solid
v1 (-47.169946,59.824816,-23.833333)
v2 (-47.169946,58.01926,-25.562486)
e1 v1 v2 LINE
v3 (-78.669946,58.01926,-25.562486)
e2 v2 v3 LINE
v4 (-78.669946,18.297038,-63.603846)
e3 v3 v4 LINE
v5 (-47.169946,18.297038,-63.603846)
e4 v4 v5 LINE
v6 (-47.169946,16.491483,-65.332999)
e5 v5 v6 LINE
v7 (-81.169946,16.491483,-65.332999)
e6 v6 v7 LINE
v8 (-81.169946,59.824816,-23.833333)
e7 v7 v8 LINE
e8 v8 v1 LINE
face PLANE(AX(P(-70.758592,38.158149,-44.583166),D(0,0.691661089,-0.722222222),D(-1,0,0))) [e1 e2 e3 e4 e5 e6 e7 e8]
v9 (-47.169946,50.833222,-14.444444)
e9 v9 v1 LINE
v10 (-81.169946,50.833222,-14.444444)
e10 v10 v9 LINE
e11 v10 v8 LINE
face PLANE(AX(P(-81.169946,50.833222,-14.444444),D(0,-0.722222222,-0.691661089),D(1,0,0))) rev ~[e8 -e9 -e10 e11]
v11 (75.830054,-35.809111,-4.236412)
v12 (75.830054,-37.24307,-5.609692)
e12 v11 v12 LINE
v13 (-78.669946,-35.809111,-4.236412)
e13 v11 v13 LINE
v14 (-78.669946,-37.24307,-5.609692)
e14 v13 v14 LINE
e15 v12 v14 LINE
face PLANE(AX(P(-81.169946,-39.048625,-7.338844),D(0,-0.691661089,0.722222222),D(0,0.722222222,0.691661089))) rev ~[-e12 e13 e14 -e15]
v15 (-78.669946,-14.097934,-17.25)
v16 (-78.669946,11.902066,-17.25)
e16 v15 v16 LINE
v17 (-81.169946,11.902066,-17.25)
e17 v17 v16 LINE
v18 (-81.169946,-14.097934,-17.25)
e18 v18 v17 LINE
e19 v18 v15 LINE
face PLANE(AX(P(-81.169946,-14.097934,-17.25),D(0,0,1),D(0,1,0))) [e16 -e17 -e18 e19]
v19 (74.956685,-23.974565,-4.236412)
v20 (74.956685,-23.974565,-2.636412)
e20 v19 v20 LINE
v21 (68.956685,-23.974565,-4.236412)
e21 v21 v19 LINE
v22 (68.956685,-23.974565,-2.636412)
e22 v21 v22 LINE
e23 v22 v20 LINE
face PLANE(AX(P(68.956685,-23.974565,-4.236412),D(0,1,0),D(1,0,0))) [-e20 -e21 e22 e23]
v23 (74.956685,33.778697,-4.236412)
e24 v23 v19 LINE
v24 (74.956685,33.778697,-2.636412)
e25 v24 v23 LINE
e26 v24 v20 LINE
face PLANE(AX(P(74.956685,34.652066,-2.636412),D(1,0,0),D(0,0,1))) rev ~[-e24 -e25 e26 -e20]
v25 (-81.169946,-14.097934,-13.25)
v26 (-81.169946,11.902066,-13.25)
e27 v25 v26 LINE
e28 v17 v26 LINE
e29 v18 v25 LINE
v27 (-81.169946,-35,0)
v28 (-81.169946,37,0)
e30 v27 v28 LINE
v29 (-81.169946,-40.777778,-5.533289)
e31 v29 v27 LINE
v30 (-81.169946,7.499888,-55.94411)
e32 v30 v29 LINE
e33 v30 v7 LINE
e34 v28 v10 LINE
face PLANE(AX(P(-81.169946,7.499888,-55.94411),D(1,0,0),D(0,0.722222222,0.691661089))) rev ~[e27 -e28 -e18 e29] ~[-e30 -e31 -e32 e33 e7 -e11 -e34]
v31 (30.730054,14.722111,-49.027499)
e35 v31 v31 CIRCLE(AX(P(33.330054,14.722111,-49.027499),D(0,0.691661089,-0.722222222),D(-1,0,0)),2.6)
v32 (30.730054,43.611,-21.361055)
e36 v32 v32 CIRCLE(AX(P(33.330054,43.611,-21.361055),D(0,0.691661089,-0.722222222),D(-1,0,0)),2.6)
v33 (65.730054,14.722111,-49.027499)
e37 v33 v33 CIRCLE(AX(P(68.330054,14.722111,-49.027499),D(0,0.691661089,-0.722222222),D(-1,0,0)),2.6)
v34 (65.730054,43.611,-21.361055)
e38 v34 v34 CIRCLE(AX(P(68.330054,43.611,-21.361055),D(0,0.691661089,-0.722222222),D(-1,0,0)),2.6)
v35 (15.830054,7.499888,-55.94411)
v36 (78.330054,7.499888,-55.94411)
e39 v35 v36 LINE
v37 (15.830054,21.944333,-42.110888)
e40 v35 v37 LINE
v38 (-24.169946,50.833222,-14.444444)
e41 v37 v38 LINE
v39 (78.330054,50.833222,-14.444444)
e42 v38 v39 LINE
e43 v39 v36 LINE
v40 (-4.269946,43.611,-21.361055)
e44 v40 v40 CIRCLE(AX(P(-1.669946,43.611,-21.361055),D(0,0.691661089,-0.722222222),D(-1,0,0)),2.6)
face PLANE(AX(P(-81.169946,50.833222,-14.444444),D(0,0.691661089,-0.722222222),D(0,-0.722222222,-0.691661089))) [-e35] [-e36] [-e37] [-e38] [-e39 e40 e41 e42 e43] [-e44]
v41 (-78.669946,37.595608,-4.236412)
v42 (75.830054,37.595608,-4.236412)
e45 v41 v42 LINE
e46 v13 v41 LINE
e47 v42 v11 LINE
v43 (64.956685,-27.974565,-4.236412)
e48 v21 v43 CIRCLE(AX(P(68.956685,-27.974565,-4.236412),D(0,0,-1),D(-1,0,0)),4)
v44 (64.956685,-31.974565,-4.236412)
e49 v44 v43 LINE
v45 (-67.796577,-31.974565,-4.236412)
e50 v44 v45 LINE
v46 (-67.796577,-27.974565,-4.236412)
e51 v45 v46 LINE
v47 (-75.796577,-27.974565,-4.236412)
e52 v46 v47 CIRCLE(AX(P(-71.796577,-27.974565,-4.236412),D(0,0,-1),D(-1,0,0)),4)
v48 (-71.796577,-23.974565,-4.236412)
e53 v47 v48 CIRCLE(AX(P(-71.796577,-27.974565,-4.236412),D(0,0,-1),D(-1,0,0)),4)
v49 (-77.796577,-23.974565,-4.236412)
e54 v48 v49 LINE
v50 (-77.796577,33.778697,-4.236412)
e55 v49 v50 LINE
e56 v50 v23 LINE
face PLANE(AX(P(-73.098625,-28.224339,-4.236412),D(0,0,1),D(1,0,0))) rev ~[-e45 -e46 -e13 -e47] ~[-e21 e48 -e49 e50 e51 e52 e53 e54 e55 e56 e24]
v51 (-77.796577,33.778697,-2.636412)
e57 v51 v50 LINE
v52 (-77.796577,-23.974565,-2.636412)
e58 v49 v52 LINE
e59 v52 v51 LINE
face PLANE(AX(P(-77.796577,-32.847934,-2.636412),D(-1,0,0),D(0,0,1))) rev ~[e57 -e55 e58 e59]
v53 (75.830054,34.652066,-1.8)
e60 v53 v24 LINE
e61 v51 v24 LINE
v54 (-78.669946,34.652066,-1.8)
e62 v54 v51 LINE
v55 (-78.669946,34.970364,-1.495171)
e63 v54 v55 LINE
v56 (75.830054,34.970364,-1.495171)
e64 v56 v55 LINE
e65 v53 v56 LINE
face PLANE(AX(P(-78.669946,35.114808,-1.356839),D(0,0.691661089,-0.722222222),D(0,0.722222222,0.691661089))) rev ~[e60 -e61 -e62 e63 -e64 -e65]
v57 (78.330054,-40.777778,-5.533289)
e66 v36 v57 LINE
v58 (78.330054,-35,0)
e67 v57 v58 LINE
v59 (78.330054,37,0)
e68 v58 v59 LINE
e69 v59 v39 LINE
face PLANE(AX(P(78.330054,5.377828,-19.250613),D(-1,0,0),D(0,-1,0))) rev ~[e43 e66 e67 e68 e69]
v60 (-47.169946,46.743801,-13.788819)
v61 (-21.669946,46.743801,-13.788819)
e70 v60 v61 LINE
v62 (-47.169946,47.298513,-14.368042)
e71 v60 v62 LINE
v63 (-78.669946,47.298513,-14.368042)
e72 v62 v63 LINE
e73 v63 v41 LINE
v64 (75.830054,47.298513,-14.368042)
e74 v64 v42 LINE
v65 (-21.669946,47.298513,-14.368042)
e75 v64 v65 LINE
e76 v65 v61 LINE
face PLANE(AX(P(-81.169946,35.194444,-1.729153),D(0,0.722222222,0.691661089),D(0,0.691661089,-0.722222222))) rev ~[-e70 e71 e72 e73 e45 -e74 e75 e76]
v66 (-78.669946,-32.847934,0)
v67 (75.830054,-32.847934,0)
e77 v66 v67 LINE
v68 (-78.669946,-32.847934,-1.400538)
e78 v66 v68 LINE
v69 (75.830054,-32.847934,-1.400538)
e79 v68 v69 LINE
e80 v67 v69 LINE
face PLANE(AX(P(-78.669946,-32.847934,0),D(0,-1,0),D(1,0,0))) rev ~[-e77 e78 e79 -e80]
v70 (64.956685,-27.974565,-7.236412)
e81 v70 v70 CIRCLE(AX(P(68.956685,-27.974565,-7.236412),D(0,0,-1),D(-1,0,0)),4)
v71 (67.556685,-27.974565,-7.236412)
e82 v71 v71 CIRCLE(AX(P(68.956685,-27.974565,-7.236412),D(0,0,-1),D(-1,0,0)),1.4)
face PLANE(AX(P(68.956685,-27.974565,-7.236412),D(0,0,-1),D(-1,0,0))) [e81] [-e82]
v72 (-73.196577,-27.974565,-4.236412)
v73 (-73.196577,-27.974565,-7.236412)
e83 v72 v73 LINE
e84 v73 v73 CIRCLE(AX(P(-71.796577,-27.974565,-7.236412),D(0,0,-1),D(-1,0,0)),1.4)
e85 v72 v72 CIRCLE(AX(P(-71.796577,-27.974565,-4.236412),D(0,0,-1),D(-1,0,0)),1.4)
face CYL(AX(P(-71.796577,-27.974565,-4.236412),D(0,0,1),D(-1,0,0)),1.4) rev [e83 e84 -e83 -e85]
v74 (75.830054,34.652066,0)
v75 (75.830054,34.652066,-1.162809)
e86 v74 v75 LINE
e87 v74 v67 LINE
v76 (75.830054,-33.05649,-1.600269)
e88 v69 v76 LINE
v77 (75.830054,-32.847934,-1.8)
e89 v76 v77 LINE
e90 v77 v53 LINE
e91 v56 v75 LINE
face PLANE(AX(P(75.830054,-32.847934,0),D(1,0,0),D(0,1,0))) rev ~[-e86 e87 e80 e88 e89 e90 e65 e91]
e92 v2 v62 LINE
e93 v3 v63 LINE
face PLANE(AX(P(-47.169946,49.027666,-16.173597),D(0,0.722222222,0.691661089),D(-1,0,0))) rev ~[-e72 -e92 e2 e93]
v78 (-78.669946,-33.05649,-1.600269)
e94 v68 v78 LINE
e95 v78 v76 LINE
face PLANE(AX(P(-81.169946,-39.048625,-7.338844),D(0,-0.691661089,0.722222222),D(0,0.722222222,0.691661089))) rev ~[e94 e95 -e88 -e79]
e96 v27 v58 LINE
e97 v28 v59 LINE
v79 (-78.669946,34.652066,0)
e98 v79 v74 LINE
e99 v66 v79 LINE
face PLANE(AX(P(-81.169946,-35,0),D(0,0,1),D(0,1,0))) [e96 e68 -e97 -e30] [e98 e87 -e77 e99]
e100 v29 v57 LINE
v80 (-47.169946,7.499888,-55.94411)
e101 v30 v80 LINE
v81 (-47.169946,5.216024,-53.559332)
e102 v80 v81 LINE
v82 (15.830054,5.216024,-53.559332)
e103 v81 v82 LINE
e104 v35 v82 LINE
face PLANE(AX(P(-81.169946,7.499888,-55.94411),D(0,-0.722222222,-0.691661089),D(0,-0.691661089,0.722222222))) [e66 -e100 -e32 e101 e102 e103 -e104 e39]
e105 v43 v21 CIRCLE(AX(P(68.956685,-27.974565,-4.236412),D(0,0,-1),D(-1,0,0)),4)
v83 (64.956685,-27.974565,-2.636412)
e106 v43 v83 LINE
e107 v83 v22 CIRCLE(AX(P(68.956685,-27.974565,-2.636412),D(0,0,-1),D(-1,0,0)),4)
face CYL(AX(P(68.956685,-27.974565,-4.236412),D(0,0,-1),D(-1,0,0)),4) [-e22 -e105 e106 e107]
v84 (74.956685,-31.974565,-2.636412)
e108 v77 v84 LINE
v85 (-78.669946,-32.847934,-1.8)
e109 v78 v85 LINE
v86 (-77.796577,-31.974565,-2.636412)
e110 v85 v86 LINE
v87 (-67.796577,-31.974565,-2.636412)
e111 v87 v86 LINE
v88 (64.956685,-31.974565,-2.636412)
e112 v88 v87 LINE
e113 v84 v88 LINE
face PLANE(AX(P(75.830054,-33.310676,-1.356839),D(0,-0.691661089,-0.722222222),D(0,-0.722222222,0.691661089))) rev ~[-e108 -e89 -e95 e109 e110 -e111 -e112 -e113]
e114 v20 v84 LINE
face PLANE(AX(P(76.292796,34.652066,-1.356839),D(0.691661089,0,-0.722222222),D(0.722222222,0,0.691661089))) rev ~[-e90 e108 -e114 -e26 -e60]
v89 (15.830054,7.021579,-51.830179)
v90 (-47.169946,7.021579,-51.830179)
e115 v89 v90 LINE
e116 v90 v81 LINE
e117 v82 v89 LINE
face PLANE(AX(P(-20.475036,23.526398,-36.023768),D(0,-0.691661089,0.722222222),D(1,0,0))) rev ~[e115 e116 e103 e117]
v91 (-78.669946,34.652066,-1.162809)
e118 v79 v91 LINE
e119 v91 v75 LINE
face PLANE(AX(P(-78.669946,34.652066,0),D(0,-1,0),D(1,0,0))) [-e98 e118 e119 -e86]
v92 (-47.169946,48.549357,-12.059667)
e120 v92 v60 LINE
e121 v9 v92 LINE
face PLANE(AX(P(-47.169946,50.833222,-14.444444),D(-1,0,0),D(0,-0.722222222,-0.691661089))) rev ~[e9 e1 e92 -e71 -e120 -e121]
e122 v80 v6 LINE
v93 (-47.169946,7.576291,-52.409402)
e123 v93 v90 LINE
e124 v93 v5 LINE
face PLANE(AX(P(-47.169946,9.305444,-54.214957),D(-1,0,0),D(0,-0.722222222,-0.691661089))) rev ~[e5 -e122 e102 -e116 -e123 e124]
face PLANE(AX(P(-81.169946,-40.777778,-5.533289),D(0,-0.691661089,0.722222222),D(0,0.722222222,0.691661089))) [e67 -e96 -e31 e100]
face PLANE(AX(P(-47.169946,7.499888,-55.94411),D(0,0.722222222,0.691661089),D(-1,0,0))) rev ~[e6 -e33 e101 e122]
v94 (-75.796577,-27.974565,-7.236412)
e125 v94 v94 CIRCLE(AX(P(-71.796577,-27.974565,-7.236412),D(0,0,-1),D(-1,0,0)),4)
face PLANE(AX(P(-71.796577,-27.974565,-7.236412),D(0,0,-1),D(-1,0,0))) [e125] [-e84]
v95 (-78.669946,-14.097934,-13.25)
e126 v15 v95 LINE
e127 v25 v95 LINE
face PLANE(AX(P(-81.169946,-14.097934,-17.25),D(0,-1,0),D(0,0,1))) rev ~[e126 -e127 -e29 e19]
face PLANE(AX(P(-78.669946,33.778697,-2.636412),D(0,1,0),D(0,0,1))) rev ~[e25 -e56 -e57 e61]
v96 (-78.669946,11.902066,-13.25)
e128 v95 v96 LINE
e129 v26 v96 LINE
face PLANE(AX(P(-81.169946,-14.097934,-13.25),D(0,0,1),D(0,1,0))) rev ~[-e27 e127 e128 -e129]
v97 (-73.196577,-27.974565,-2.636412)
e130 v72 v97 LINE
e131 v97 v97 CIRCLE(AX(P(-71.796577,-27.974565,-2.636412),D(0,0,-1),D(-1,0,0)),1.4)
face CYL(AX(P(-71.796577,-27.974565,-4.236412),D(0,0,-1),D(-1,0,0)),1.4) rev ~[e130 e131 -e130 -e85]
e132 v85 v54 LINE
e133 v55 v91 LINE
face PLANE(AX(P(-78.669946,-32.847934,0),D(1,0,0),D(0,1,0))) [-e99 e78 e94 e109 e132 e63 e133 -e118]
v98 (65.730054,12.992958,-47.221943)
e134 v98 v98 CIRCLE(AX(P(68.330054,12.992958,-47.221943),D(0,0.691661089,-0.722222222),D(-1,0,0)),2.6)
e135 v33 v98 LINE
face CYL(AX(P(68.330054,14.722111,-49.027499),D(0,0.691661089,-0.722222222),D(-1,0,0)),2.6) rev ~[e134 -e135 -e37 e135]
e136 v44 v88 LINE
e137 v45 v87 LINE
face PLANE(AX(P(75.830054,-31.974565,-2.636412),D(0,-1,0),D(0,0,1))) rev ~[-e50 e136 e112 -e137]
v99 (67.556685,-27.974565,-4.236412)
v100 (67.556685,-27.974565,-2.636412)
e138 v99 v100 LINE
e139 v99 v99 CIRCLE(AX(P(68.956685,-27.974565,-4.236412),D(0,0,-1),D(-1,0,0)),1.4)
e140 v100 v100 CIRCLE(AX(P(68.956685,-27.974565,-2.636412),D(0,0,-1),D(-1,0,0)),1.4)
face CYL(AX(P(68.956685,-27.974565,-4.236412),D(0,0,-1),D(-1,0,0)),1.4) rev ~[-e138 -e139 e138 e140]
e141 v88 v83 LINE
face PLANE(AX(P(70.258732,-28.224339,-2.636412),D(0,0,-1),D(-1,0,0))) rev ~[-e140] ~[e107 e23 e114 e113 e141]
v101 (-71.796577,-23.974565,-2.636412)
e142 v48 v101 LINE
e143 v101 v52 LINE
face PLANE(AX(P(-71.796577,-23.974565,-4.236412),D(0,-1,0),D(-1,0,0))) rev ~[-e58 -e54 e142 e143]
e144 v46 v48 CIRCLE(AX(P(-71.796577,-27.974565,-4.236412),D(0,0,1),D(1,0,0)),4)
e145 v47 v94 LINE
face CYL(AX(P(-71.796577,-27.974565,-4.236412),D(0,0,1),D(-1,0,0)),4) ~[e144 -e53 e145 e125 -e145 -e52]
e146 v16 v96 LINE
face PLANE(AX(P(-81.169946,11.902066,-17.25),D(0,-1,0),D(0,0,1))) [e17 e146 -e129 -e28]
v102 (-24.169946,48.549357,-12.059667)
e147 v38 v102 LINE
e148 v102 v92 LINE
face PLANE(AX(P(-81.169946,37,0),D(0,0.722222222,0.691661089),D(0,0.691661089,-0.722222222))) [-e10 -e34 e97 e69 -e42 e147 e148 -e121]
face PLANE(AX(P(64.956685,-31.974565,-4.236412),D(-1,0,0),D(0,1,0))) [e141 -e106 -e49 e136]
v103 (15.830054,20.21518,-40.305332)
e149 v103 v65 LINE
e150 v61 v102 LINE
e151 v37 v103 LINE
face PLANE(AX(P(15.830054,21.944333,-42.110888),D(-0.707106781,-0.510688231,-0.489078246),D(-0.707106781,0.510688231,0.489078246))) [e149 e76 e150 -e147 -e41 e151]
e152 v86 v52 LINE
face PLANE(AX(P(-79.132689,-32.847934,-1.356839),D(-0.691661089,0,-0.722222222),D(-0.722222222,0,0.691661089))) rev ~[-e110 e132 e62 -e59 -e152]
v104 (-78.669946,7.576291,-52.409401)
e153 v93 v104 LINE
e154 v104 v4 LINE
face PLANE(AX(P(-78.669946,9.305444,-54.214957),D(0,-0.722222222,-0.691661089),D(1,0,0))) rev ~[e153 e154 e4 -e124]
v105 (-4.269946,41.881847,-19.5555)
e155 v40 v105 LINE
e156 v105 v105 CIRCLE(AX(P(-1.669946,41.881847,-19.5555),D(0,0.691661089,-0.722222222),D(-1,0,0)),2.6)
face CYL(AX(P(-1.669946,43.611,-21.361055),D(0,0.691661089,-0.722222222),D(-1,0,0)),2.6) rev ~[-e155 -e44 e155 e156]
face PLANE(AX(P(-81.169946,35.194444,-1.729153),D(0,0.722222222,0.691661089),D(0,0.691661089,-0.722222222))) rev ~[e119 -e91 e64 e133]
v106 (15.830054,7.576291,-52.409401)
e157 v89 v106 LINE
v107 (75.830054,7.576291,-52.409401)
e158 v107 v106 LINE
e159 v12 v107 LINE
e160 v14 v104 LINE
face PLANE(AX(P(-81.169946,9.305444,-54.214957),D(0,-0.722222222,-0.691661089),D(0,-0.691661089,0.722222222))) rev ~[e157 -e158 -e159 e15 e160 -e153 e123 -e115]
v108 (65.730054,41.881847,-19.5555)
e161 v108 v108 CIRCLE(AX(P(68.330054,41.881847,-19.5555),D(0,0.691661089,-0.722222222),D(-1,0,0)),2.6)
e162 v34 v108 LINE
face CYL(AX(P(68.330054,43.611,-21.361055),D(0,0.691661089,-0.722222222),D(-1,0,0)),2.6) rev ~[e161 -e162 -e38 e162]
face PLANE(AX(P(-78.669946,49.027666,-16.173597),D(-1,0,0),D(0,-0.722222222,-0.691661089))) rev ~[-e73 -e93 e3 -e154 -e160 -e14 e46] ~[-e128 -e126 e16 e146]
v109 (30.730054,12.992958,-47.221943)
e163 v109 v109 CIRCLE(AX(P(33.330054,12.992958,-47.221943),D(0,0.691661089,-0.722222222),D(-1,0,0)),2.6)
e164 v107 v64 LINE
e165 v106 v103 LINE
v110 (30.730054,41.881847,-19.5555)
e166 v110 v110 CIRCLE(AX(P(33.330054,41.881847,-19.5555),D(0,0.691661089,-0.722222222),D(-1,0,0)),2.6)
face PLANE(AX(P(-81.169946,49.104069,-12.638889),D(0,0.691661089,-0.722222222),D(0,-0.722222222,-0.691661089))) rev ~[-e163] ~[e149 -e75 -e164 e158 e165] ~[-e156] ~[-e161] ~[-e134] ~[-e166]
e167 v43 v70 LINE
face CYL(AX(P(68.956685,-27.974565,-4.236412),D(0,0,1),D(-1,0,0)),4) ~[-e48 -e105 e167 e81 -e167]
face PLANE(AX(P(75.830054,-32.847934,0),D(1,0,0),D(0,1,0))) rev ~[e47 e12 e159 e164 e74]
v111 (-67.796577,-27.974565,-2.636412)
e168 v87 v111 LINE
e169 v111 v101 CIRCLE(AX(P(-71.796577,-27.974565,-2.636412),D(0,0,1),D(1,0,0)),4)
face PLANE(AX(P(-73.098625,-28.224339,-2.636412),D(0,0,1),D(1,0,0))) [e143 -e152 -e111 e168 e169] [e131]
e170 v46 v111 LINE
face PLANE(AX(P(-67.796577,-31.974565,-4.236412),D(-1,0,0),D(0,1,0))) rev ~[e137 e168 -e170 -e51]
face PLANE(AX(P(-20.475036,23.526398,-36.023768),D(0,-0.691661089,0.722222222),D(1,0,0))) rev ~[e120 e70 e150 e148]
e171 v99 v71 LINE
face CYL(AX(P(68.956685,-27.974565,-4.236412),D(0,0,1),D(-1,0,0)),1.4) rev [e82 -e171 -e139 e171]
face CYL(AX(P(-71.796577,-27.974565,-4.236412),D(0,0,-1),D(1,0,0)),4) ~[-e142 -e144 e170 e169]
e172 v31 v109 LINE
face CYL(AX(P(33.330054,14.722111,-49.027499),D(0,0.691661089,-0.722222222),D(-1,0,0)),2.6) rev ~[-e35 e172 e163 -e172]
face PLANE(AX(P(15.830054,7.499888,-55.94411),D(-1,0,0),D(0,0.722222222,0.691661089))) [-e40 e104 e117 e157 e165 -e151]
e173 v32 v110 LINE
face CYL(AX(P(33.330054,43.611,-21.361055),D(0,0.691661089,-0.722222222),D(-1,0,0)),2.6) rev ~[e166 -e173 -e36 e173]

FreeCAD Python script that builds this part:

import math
import FreeCAD as App
import Part
import Sketcher
Q = App.Units.Quantity


def faces_at(feature, points):
    """Names of the faces that lie closest to the given points."""
    faces = feature.Shape.Faces
    near = lambda p: min(range(len(faces)), key=lambda i: faces[i].distToShape(Part.Vertex(*p))[0])
    return sorted({f"Face{near(p) + 1}" for p in points})


def add_polygon(sketch, points):
    """Adds a closed chain of lines whose ends are joined by coincident constraints."""
    first, n = sketch.GeometryCount, len(points)
    for a, b in zip(points, points[1:] + points[:1]):
        sketch.addGeometry(Part.LineSegment(App.Vector(*a, 0), App.Vector(*b, 0)), False)
    for i in range(n):
        sketch.addConstraint(Sketcher.Constraint("Coincident", first + i, 2, first + (i + 1) % n, 1))

doc = App.newDocument("Part")
params = doc.addObject("Spreadsheet::Sheet", "Params")
for row, (alias, value) in enumerate([
    ("sketch1_width", "72 mm"),
    ("sketch1_length", "20 mm"),
    ("sketch1_length2", "8 mm"),
    ("sketch1_length3", "60 mm"),
    ("pad1_length", "159.5 mm"),
    ("thickness_wall", "2.5 mm"),
    ("sketch2_width", "154.5 mm"),
    ("sketch2_height", "67.5 mm"),
    ("pocket1_length", "4 mm"),
    ("sketch3_width", "26 mm"),
    ("sketch3_height", "4 mm"),
    ("sketch4_height", "1.6 mm"),
    ("sketch4_length", "1.85 mm"),
    ("sketch5_width", "154.5 mm"),
    ("sketch5_height", "67.5 mm"),
    ("sketch6_width", "179.5 mm"),
    ("sketch6_width2", "159.5 mm"),
    ("sketch7_height", "55 mm"),
    ("sketch7_width", "31.5 mm"),
    ("pocket4_length", "2.5 mm"),
    ("sketch8_width", "34 mm"),
    ("sketch8_height", "55 mm"),
    ("sketch8_height2", "60 mm"),
    ("sketch8_width2", "31.5 mm"),
    ("pad2_length", "13 mm"),
    ("sketch9_width", "63 mm"),
    ("sketch9_width2", "23 mm"),
    ("sketch9_height", "60 mm"),
    ("sketch9_height2", "20 mm"),
    ("pocket5_length", "3.302 mm"),
    ("sketch10_diameter", "5.2 mm"),
    ("pocket6_length", "2.5 mm"),
    ("sketch11_radius", "4 mm"),
    ("sketch11_width", "10 mm"),
    ("sketch11_height", "8 mm"),
    ("pad3_length", "1.6 mm"),
    ("sketch12_diameter", "8 mm"),
    ("sketch12_diameter2", "2.8 mm"),
    ("pad4_length", "3 mm"),
    ("sketch13_diameter", "2.8 mm"),
    ("sketch14_diameter", "2.8 mm"),
], start=1):
    params.set(f"A{row}", alias)
    params.set(f"B{row}", "=" + value)
    params.setAlias(f"B{row}", alias)

body = doc.addObject("PartDesign::Body", "Body")

sketch1 = body.newObject("Sketcher::SketchObject", "Sketch")
sketch1.AttachmentSupport = (doc.getObject("YZ_Plane"), [""])
sketch1.MapMode = "FlatFace"
sketch1.AttachmentOffset = App.Placement(App.Vector(0, 0, -81.169946), App.Rotation())
add_polygon(sketch1, [(50.833222, -14.444444), (37, 0), (-35, 0), (-40.777778, -5.533289), (7.499888, -55.94411)])
sketch1.addConstraint([
    Sketcher.Constraint("Horizontal", 1),
    Sketcher.Constraint("PointOnObject", 0, 2, -1),
    Sketcher.Constraint("Perpendicular", 0, 2),
    Sketcher.Constraint("Perpendicular", 2, 3),
    Sketcher.Constraint("Perpendicular", 3, 4),
    Sketcher.Constraint("DistanceX", 1, 2, 1, 1, Q("72 mm")),
    Sketcher.Constraint("Distance", 0, Q("20 mm")),
    Sketcher.Constraint("Distance", 2, Q("8 mm")),
    Sketcher.Constraint("Distance", 4, Q("60 mm")),
    Sketcher.Constraint("DistanceX", -1, 1, 0, 2, Q("37 mm")),
])
sketch1.setExpression("Constraints[10]", "Params.sketch1_width")
sketch1.setExpression("Constraints[11]", "Params.sketch1_length")
sketch1.setExpression("Constraints[12]", "Params.sketch1_length2")
sketch1.setExpression("Constraints[13]", "Params.sketch1_length3")
pad1 = body.newObject("PartDesign::Pad", "Pad")
pad1.Profile = sketch1
pad1.setExpression("Length", "Params.pad1_length")
doc.recompute()

thickness = body.newObject("PartDesign::Thickness", "Thickness")
thickness.Base = (pad1, faces_at(pad1, [(-1.42, 1, 0)]))
thickness.setExpression("Value", "Params.thickness_wall")
thickness.Reversed = True
thickness.Join = "Intersection"

sketch2 = body.newObject("Sketcher::SketchObject", "Sketch001")
sketch2.AttachmentSupport = (doc.getObject("XY_Plane"), [""])
sketch2.MapMode = "FlatFace"
add_polygon(sketch2, [(-78.669946, 34.652066), (-78.669946, -32.847934), (75.830054, -32.847934), (75.830054, 34.652066)])
sketch2.addConstraint([
    Sketcher.Constraint("Vertical", 0),
    Sketcher.Constraint("Horizontal", 1),
    Sketcher.Constraint("Vertical", 2),
    Sketcher.Constraint("Horizontal", 3),
    Sketcher.Constraint("DistanceX", 1, 1, 1, 2, Q("154.5 mm")),
    Sketcher.Constraint("DistanceY", 0, 2, 0, 1, Q("67.5 mm")),
    Sketcher.Constraint("DistanceX", 0, 2, -1, 1, Q("78.669946 mm")),
    Sketcher.Constraint("DistanceY", 0, 2, -1, 1, Q("32.847934 mm")),
])
sketch2.setExpression("Constraints[8]", "Params.sketch2_width")
sketch2.setExpression("Constraints[9]", "Params.sketch2_height")
pocket1 = body.newObject("PartDesign::Pocket", "Pocket")
pocket1.Profile = sketch2
pocket1.setExpression("Length", "Params.pocket1_length")

sketch3 = body.newObject("Sketcher::SketchObject", "Sketch002")
sketch3.AttachmentSupport = (doc.getObject("YZ_Plane"), [""])
sketch3.MapMode = "FlatFace"
sketch3.AttachmentOffset = App.Placement(App.Vector(0, 0, -81.169946), App.Rotation())
add_polygon(sketch3, [(11.902066, -17.25), (-14.097934, -17.25), (-14.097934, -13.25), (11.902066, -13.25)])
sketch3.addConstraint([
    Sketcher.Constraint("Horizontal", 0),
    Sketcher.Constraint("Vertical", 1),
    Sketcher.Constraint("Horizontal", 2),
    Sketcher.Constraint("Vertical", 3),
    Sketcher.Constraint("DistanceX", 0, 2, 0, 1, Q("26 mm")),
    Sketcher.Constraint("DistanceY", 1, 1, 1, 2, Q("4 mm")),
    Sketcher.Constraint("DistanceY", 0, 2, -1, 1, Q("17.25 mm")),
    Sketcher.Constraint("DistanceX", 0, 2, -1, 1, Q("14.097934 mm")),
])
sketch3.setExpression("Constraints[8]", "Params.sketch3_width")
sketch3.setExpression("Constraints[9]", "Params.sketch3_height")
pocket2 = body.newObject("PartDesign::Pocket", "Pocket001")
pocket2.Profile = sketch3
pocket2.Type = "UpToFirst"
pocket2.Reversed = True

sketch4 = body.newObject("Sketcher::SketchObject", "Sketch003")
sketch4.AttachmentSupport = (doc.getObject("YZ_Plane"), [""])
sketch4.MapMode = "FlatFace"
sketch4.AttachmentOffset = App.Placement(App.Vector(0, 0, 75.830054), App.Rotation())
add_polygon(sketch4, [(33.778697, -2.636412), (35.114808, -1.356839), (37.872531, -4.236412), (33.778697, -4.236412)])
sketch4.addConstraint([
    Sketcher.Constraint("Horizontal", 2),
    Sketcher.Constraint("Vertical", 3),
    Sketcher.Constraint("Perpendicular", 0, 1),
    Sketcher.Constraint("DistanceY", 3, 1, 3, 2, Q("1.6 mm")),
    Sketcher.Constraint("Distance", 0, Q("1.85 mm")),
    Sketcher.Constraint("Distance", 1, Q("3.987101 mm")),
    Sketcher.Constraint("DistanceX", -1, 1, 0, 2, Q("35.114808 mm")),
    Sketcher.Constraint("DistanceY", 0, 2, -1, 1, Q("1.356839 mm")),
])
sketch4.setExpression("Constraints[7]", "Params.sketch4_height")
sketch4.setExpression("Constraints[8]", "Params.sketch4_length")

sketch5 = body.newObject("Sketcher::SketchObject", "Sketch004")
sketch5.AttachmentSupport = (doc.getObject("XY_Plane"), [""])
sketch5.MapMode = "FlatFace"
sketch5.AttachmentOffset = App.Placement(App.Vector(0, 0, -1.8), App.Rotation())
add_polygon(sketch5, [(-78.669946, 34.652066), (75.830054, 34.652066), (75.830054, -32.847934), (-78.669946, -32.847934)])
sketch5.addConstraint([
    Sketcher.Constraint("Horizontal", 0),
    Sketcher.Constraint("Vertical", 1),
    Sketcher.Constraint("Horizontal", 2),
    Sketcher.Constraint("Vertical", 3),
    Sketcher.Constraint("DistanceX", 0, 1, 0, 2, Q("154.5 mm")),
    Sketcher.Constraint("DistanceY", 1, 2, 1, 1, Q("67.5 mm")),
    Sketcher.Constraint("DistanceX", -1, 1, 0, 2, Q("75.830054 mm")),
    Sketcher.Constraint("DistanceY", -1, 1, 0, 2, Q("34.652066 mm")),
])
sketch5.setExpression("Constraints[8]", "Params.sketch5_width")
sketch5.setExpression("Constraints[9]", "Params.sketch5_height")
doc.recompute()

additivepipe = body.newObject("PartDesign::AdditivePipe", "AdditivePipe")
additivepipe.Profile = sketch4
additivepipe.Spine = (sketch5, ["Edge1", "Edge2", "Edge3", "Edge4"])
additivepipe.Transition = "Right corner"

sketch6 = body.newObject("Sketcher::SketchObject", "Sketch005")
sketch6.AttachmentSupport = (doc.getObject("XY_Plane"), [""])
sketch6.MapMode = "FlatFace"
add_polygon(sketch6, [(-91.169946, 60.833222), (-91.169946, -50.777778), (88.330054, -50.777778), (88.330054, 60.833222)])
add_polygon(sketch6, [(78.330054, -40.777778), (-81.169946, -40.777778), (-81.169946, 50.833222), (78.330054, 50.833222)])
sketch6.addConstraint([
    Sketcher.Constraint("Vertical", 0),
    Sketcher.Constraint("Horizontal", 1),
    Sketcher.Constraint("Vertical", 2),
    Sketcher.Constraint("Horizontal", 3),
    Sketcher.Constraint("Horizontal", 4),
    Sketcher.Constraint("Vertical", 5),
    Sketcher.Constraint("Horizontal", 6),
    Sketcher.Constraint("Vertical", 7),
    Sketcher.Constraint("DistanceX", 1, 1, 1, 2, Q("179.5 mm")),
    Sketcher.Constraint("DistanceX", 4, 2, 4, 1, Q("159.5 mm")),
    Sketcher.Constraint("DistanceX", 0, 2, 4, 2, Q("10 mm")),
    Sketcher.Constraint("DistanceY", 0, 2, 4, 2, Q("10 mm")),
    Sketcher.Constraint("DistanceY", 5, 2, 3, 2, Q("10 mm")),
    Sketcher.Constraint("DistanceY", 0, 2, 0, 1, Q("111.611 mm")),
    Sketcher.Constraint("DistanceY", -1, 1, 2, 2, Q("60.833222 mm")),
    Sketcher.Constraint("DistanceX", 0, 2, -1, 1, Q("91.169946 mm")),
])
sketch6.setExpression("Constraints[16]", "Params.sketch6_width")
sketch6.setExpression("Constraints[17]", "Params.sketch6_width2")
pocket3 = body.newObject("PartDesign::Pocket", "Pocket002")
pocket3.Profile = sketch6
pocket3.Type = "ThroughAll"

sketch7 = body.newObject("Sketcher::SketchObject", "Sketch006")
sketch7.Placement = App.Placement(App.Vector(0, 31.533839, -32.927166), App.Rotation(App.Vector(-1, 0, 0), App.Vector(0, 0.722222222, 0.691661089), App.Vector(0, 0.691661089, -0.722222222), "ZXY"))
add_polygon(sketch7, [(47.169946, 24.222222), (47.169946, -30.777778), (78.669946, -30.777778), (78.669946, 24.222222)])
sketch7.addConstraint([
    Sketcher.Constraint("Vertical", 0),
    Sketcher.Constraint("Horizontal", 1),
    Sketcher.Constraint("Vertical", 2),
    Sketcher.Constraint("Horizontal", 3),
    Sketcher.Constraint("DistanceY", 0, 2, 0, 1, Q("55 mm")),
    Sketcher.Constraint("DistanceX", 1, 1, 1, 2, Q("31.5 mm")),
    Sketcher.Constraint("DistanceX", -1, 1, 0, 2, Q("47.169946 mm")),
    Sketcher.Constraint("DistanceY", 0, 2, -1, 1, Q("30.777778 mm")),
])
sketch7.setExpression("Constraints[8]", "Params.sketch7_height")
sketch7.setExpression("Constraints[9]", "Params.sketch7_width")
pocket4 = body.newObject("PartDesign::Pocket", "Pocket003")
pocket4.Profile = sketch7
pocket4.setExpression("Length", "Params.pocket4_length")

sketch8 = body.newObject("Sketcher::SketchObject", "Sketch007")
sketch8.Placement = App.Placement(App.Vector(0, 31.533839, -32.927166), App.Rotation(App.Vector(-1, 0, 0), App.Vector(0, 0.722222222, 0.691661089), App.Vector(0, 0.691661089, -0.722222222), "ZXY"))
add_polygon(sketch8, [(78.669946, 24.222222), (78.669946, -30.777778), (47.169946, -30.777778), (47.169946, -33.277778), (81.169946, -33.277778), (81.169946, 26.722222), (47.169946, 26.722222), (47.169946, 24.222222)])
sketch8.addConstraint([
    Sketcher.Constraint("Vertical", 0),
    Sketcher.Constraint("Horizontal", 1),
    Sketcher.Constraint("Vertical", 2),
    Sketcher.Constraint("Horizontal", 3),
    Sketcher.Constraint("Vertical", 4),
    Sketcher.Constraint("Horizontal", 5),
    Sketcher.Constraint("Vertical", 6),
    Sketcher.Constraint("Horizontal", 7),
    Sketcher.Constraint("Vertical", 2, 2, 5, 2),
    Sketcher.Constraint("Equal", 2, 6),
    Sketcher.Constraint("DistanceX", 3, 1, 3, 2, Q("34 mm")),
    Sketcher.Constraint("DistanceY", 0, 2, 0, 1, Q("55 mm")),
    Sketcher.Constraint("DistanceY", 4, 1, 4, 2, Q("60 mm")),
    Sketcher.Constraint("DistanceX", 1, 2, 1, 1, Q("31.5 mm")),
    Sketcher.Constraint("DistanceX", -1, 1, 0, 2, Q("78.669946 mm")),
    Sketcher.Constraint("DistanceY", 0, 2, -1, 1, Q("30.777778 mm")),
])
sketch8.setExpression("Constraints[18]", "Params.sketch8_width")
sketch8.setExpression("Constraints[19]", "Params.sketch8_height")
sketch8.setExpression("Constraints[20]", "Params.sketch8_height2")
sketch8.setExpression("Constraints[21]", "Params.sketch8_width2")
pad2 = body.newObject("PartDesign::Pad", "Pad001")
pad2.Profile = sketch8
pad2.setExpression("Length", "Params.pad2_length")

sketch9 = body.newObject("Sketcher::SketchObject", "Sketch008")
sketch9.Placement = App.Placement(App.Vector(0, 31.533839, -32.927166), App.Rotation(App.Vector(-1, 0, 0), App.Vector(0, 0.722222222, 0.691661089), App.Vector(0, 0.691661089, -0.722222222), "ZXY"))
add_polygon(sketch9, [(-15.830054, -33.277778), (47.169946, -33.277778), (47.169946, 26.722222), (24.169946, 26.722222), (-15.830054, -13.277778)])
sketch9.addConstraint([
    Sketcher.Constraint("Horizontal", 0),
    Sketcher.Constraint("Vertical", 1),
    Sketcher.Constraint("Horizontal", 2),
    Sketcher.Constraint("Vertical", 4),
    Sketcher.Constraint("DistanceX", 0, 1, 0, 2, Q("63 mm")),
    Sketcher.Constraint("DistanceX", 2, 2, 2, 1, Q("23 mm")),
    Sketcher.Constraint("DistanceY", 1, 1, 1, 2, Q("60 mm")),
    Sketcher.Constraint("DistanceY", 4, 2, 4, 1, Q("20 mm")),
    Sketcher.Constraint("DistanceX", -1, 1, 0, 2, Q("47.169946 mm")),
    Sketcher.Constraint("DistanceY", 0, 2, -1, 1, Q("33.277778 mm")),
])
sketch9.setExpression("Constraints[9]", "Params.sketch9_width")
sketch9.setExpression("Constraints[10]", "Params.sketch9_width2")
sketch9.setExpression("Constraints[11]", "Params.sketch9_height")
sketch9.setExpression("Constraints[12]", "Params.sketch9_height2")
pocket5 = body.newObject("PartDesign::Pocket", "Pocket004")
pocket5.Profile = sketch9
pocket5.setExpression("Length", "Params.pocket5_length")

sketch10 = body.newObject("Sketcher::SketchObject", "Sketch009")
sketch10.Placement = App.Placement(App.Vector(0, 31.533839, -32.927166), App.Rotation(App.Vector(-1, 0, 0), App.Vector(0, 0.722222222, 0.691661089), App.Vector(0, 0.691661089, -0.722222222), "ZXY"))
sketch10.addGeometry([
    Part.Circle(App.Vector(-68.330054, -23.277778, 0), App.Vector(0, 0, 1), 2.6),
    Part.Circle(App.Vector(-33.330054, -23.277778, 0), App.Vector(0, 0, 1), 2.6),
    Part.Circle(App.Vector(-33.330054, 16.722222, 0), App.Vector(0, 0, 1), 2.6),
    Part.Circle(App.Vector(1.669946, 16.722222, 0), App.Vector(0, 0, 1), 2.6),
    Part.Circle(App.Vector(-68.330054, 16.722222, 0), App.Vector(0, 0, 1), 2.6),
], False)
sketch10.addConstraint([
    Sketcher.Constraint("Equal", 0, 1),
    Sketcher.Constraint("Equal", 1, 2),
    Sketcher.Constraint("Equal", 2, 3),
    Sketcher.Constraint("Equal", 3, 4),
    Sketcher.Constraint("Horizontal", 0, 3, 1, 3),
    Sketcher.Constraint("Horizontal", 2, 3, 3, 3),
    Sketcher.Constraint("Horizontal", 3, 3, 4, 3),
    Sketcher.Constraint("Vertical", 1, 3, 2, 3),
    Sketcher.Constraint("Vertical", 0, 3, 4, 3),
    Sketcher.Constraint("Diameter", 0, Q("5.2 mm")),
    Sketcher.Constraint("DistanceX", 0, 3, 1, 3, Q("35 mm")),
    Sketcher.Constraint("DistanceY", 1, 3, 2, 3, Q("40 mm")),
    Sketcher.Constraint("DistanceX", 2, 3, 3, 3, Q("35 mm")),
    Sketcher.Constraint("DistanceX", 0, 3, -1, 1, Q("68.330054 mm")),
    Sketcher.Constraint("DistanceY", 0, 3, -1, 1, Q("23.277778 mm")),
])
sketch10.setExpression("Constraints[9]", "Params.sketch10_diameter")
pocket6 = body.newObject("PartDesign::Pocket", "Pocket005")
pocket6.Profile = sketch10
pocket6.setExpression("Length", "Params.pocket6_length")

sketch11 = body.newObject("Sketcher::SketchObject", "Sketch010")
sketch11.AttachmentSupport = (doc.getObject("XY_Plane"), [""])
sketch11.MapMode = "FlatFace"
sketch11.AttachmentOffset = App.Placement(App.Vector(0, 0, -4.236412), App.Rotation())
sketch11.addGeometry([
    Part.LineSegment(App.Vector(-67.796577, -31.974565, 0), App.Vector(-77.796577, -31.974565, 0)),
    Part.LineSegment(App.Vector(-77.796577, -31.974565, 0), App.Vector(-77.796577, -23.974565, 0)),
    Part.LineSegment(App.Vector(-77.796577, -23.974565, 0), App.Vector(-71.796577, -23.974565, 0)),
    Part.ArcOfCircle(Part.Circle(App.Vector(-71.796577, -27.974565, 0), App.Vector(0, 0, 1), 4), math.radians(0), math.radians(90)),
    Part.LineSegment(App.Vector(-67.796577, -27.974565, 0), App.Vector(-67.796577, -31.974565, 0)),
    Part.LineSegment(App.Vector(74.956685, -31.974565, 0), App.Vector(64.956685, -31.974565, 0)),
    Part.LineSegment(App.Vector(64.956685, -31.974565, 0), App.Vector(64.956685, -27.974565, 0)),
    Part.ArcOfCircle(Part.Circle(App.Vector(68.956685, -27.974565, 0), App.Vector(0, 0, 1), 4), math.radians(90), math.radians(180)),
    Part.LineSegment(App.Vector(68.956685, -23.974565, 0), App.Vector(74.956685, -23.974565, 0)),
    Part.LineSegment(App.Vector(74.956685, -23.974565, 0), App.Vector(74.956685, -31.974565, 0)),
], False)
sketch11.addConstraint([
    Sketcher.Constraint("Coincident", 0, 2, 1, 1),
    Sketcher.Constraint("Coincident", 1, 2, 2, 1),
    Sketcher.Constraint("Tangent", 2, 2, 3, 2),
    Sketcher.Constraint("Tangent", 3, 1, 4, 1),
    Sketcher.Constraint("Coincident", 4, 2, 0, 1),
    Sketcher.Constraint("Coincident", 5, 2, 6, 1),
    Sketcher.Constraint("Tangent", 6, 2, 7, 2),
    Sketcher.Constraint("Tangent", 7, 1, 8, 1),
    Sketcher.Constraint("Coincident", 8, 2, 9, 1),
    Sketcher.Constraint("Coincident", 9, 2, 5, 1),
    Sketcher.Constraint("Horizontal", 0),
    Sketcher.Constraint("Vertical", 1),
    Sketcher.Constraint("Horizontal", 2),
    Sketcher.Constraint("Vertical", 4),
    Sketcher.Constraint("Horizontal", 5),
    Sketcher.Constraint("Vertical", 6),
    Sketcher.Constraint("Horizontal", 8),
    Sketcher.Constraint("Vertical", 9),
    Sketcher.Constraint("Equal", 3, 7),
    Sketcher.Constraint("Horizontal", 3, 3, 7, 3),
    Sketcher.Constraint("Horizontal", 4, 2, 5, 2),
    Sketcher.Constraint("Equal", 0, 5),
    Sketcher.Constraint("Radius", 3, Q("4 mm")),
    Sketcher.Constraint("DistanceX", 0, 2, 0, 1, Q("10 mm")),
    Sketcher.Constraint("DistanceY", 1, 1, 1, 2, Q("8 mm")),
    Sketcher.Constraint("DistanceX", 3, 3, -1, 1, Q("71.796577 mm")),
    Sketcher.Constraint("DistanceY", 3, 3, -1, 1, Q("27.974565 mm")),
    Sketcher.Constraint("DistanceX", -1, 1, 7, 3, Q("68.956685 mm")),
])
sketch11.setExpression("Constraints[22]", "Params.sketch11_radius")
sketch11.setExpression("Constraints[23]", "Params.sketch11_width")
sketch11.setExpression("Constraints[24]", "Params.sketch11_height")
pad3 = body.newObject("PartDesign::Pad", "Pad002")
pad3.Profile = sketch11
pad3.setExpression("Length", "Params.pad3_length")

sketch12 = body.newObject("Sketcher::SketchObject", "Sketch011")
sketch12.AttachmentSupport = (doc.getObject("XY_Plane"), [""])
sketch12.MapMode = "FlatFace"
sketch12.AttachmentOffset = App.Placement(App.Vector(0, 0, -4.236412), App.Rotation())
sketch12.addGeometry([
    Part.Circle(App.Vector(-71.796577, -27.974565, 0), App.Vector(0, 0, 1), 4),
    Part.Circle(App.Vector(-71.796577, -27.974565, 0), App.Vector(0, 0, 1), 1.4),
    Part.Circle(App.Vector(68.956685, -27.974565, 0), App.Vector(0, 0, 1), 4),
    Part.Circle(App.Vector(68.956685, -27.974565, 0), App.Vector(0, 0, 1), 1.4),
], False)
sketch12.addConstraint([
    Sketcher.Constraint("Coincident", 1, 3, 0, 3),
    Sketcher.Constraint("Coincident", 3, 3, 2, 3),
    Sketcher.Constraint("Equal", 0, 2),
    Sketcher.Constraint("Equal", 1, 3),
    Sketcher.Constraint("Horizontal", 1, 3, 2, 3),
    Sketcher.Constraint("Diameter", 0, Q("8 mm")),
    Sketcher.Constraint("Diameter", 1, Q("2.8 mm")),
    Sketcher.Constraint("DistanceX", 0, 3, -1, 1, Q("71.796577 mm")),
    Sketcher.Constraint("DistanceY", 0, 3, -1, 1, Q("27.974565 mm")),
    Sketcher.Constraint("DistanceX", -1, 1, 2, 3, Q("68.956685 mm")),
])
sketch12.setExpression("Constraints[5]", "Params.sketch12_diameter")
sketch12.setExpression("Constraints[6]", "Params.sketch12_diameter2")
pad4 = body.newObject("PartDesign::Pad", "Pad003")
pad4.Profile = sketch12
pad4.setExpression("Length", "Params.pad4_length")
pad4.Reversed = True

sketch13 = body.newObject("Sketcher::SketchObject", "Sketch012")
sketch13.AttachmentSupport = (doc.getObject("XY_Plane"), [""])
sketch13.MapMode = "FlatFace"
sketch13.AttachmentOffset = App.Placement(App.Vector(0, 0, -4.236412), App.Rotation())
sketch13.addGeometry(Part.Circle(App.Vector(-71.796577, -27.974565, 0), App.Vector(0, 0, 1), 1.4), False)
sketch13.addConstraint([
    Sketcher.Constraint("Diameter", 0, Q("2.8 mm")),
    Sketcher.Constraint("DistanceX", 0, 3, -1, 1, Q("71.796577 mm")),
    Sketcher.Constraint("DistanceY", 0, 3, -1, 1, Q("27.974565 mm")),
])
sketch13.setExpression("Constraints[0]", "Params.sketch13_diameter")
pocket7 = body.newObject("PartDesign::Pocket", "Pocket006")
pocket7.Profile = sketch13
pocket7.Type = "UpToFirst"
pocket7.Reversed = True

sketch14 = body.newObject("Sketcher::SketchObject", "Sketch013")
sketch14.AttachmentSupport = (doc.getObject("XY_Plane"), [""])
sketch14.MapMode = "FlatFace"
sketch14.AttachmentOffset = App.Placement(App.Vector(0, 0, -4.236412), App.Rotation())
sketch14.addGeometry(Part.Circle(App.Vector(68.956685, -27.974565, 0), App.Vector(0, 0, 1), 1.4), False)
sketch14.addConstraint([
    Sketcher.Constraint("Diameter", 0, Q("2.8 mm")),
    Sketcher.Constraint("DistanceX", -1, 1, 0, 3, Q("68.956685 mm")),
    Sketcher.Constraint("DistanceY", 0, 3, -1, 1, Q("27.974565 mm")),
])
sketch14.setExpression("Constraints[0]", "Params.sketch14_diameter")
pocket8 = body.newObject("PartDesign::Pocket", "Pocket007")
pocket8.Profile = sketch14
pocket8.Type = "UpToFirst"
pocket8.Reversed = True

doc.recompute()
